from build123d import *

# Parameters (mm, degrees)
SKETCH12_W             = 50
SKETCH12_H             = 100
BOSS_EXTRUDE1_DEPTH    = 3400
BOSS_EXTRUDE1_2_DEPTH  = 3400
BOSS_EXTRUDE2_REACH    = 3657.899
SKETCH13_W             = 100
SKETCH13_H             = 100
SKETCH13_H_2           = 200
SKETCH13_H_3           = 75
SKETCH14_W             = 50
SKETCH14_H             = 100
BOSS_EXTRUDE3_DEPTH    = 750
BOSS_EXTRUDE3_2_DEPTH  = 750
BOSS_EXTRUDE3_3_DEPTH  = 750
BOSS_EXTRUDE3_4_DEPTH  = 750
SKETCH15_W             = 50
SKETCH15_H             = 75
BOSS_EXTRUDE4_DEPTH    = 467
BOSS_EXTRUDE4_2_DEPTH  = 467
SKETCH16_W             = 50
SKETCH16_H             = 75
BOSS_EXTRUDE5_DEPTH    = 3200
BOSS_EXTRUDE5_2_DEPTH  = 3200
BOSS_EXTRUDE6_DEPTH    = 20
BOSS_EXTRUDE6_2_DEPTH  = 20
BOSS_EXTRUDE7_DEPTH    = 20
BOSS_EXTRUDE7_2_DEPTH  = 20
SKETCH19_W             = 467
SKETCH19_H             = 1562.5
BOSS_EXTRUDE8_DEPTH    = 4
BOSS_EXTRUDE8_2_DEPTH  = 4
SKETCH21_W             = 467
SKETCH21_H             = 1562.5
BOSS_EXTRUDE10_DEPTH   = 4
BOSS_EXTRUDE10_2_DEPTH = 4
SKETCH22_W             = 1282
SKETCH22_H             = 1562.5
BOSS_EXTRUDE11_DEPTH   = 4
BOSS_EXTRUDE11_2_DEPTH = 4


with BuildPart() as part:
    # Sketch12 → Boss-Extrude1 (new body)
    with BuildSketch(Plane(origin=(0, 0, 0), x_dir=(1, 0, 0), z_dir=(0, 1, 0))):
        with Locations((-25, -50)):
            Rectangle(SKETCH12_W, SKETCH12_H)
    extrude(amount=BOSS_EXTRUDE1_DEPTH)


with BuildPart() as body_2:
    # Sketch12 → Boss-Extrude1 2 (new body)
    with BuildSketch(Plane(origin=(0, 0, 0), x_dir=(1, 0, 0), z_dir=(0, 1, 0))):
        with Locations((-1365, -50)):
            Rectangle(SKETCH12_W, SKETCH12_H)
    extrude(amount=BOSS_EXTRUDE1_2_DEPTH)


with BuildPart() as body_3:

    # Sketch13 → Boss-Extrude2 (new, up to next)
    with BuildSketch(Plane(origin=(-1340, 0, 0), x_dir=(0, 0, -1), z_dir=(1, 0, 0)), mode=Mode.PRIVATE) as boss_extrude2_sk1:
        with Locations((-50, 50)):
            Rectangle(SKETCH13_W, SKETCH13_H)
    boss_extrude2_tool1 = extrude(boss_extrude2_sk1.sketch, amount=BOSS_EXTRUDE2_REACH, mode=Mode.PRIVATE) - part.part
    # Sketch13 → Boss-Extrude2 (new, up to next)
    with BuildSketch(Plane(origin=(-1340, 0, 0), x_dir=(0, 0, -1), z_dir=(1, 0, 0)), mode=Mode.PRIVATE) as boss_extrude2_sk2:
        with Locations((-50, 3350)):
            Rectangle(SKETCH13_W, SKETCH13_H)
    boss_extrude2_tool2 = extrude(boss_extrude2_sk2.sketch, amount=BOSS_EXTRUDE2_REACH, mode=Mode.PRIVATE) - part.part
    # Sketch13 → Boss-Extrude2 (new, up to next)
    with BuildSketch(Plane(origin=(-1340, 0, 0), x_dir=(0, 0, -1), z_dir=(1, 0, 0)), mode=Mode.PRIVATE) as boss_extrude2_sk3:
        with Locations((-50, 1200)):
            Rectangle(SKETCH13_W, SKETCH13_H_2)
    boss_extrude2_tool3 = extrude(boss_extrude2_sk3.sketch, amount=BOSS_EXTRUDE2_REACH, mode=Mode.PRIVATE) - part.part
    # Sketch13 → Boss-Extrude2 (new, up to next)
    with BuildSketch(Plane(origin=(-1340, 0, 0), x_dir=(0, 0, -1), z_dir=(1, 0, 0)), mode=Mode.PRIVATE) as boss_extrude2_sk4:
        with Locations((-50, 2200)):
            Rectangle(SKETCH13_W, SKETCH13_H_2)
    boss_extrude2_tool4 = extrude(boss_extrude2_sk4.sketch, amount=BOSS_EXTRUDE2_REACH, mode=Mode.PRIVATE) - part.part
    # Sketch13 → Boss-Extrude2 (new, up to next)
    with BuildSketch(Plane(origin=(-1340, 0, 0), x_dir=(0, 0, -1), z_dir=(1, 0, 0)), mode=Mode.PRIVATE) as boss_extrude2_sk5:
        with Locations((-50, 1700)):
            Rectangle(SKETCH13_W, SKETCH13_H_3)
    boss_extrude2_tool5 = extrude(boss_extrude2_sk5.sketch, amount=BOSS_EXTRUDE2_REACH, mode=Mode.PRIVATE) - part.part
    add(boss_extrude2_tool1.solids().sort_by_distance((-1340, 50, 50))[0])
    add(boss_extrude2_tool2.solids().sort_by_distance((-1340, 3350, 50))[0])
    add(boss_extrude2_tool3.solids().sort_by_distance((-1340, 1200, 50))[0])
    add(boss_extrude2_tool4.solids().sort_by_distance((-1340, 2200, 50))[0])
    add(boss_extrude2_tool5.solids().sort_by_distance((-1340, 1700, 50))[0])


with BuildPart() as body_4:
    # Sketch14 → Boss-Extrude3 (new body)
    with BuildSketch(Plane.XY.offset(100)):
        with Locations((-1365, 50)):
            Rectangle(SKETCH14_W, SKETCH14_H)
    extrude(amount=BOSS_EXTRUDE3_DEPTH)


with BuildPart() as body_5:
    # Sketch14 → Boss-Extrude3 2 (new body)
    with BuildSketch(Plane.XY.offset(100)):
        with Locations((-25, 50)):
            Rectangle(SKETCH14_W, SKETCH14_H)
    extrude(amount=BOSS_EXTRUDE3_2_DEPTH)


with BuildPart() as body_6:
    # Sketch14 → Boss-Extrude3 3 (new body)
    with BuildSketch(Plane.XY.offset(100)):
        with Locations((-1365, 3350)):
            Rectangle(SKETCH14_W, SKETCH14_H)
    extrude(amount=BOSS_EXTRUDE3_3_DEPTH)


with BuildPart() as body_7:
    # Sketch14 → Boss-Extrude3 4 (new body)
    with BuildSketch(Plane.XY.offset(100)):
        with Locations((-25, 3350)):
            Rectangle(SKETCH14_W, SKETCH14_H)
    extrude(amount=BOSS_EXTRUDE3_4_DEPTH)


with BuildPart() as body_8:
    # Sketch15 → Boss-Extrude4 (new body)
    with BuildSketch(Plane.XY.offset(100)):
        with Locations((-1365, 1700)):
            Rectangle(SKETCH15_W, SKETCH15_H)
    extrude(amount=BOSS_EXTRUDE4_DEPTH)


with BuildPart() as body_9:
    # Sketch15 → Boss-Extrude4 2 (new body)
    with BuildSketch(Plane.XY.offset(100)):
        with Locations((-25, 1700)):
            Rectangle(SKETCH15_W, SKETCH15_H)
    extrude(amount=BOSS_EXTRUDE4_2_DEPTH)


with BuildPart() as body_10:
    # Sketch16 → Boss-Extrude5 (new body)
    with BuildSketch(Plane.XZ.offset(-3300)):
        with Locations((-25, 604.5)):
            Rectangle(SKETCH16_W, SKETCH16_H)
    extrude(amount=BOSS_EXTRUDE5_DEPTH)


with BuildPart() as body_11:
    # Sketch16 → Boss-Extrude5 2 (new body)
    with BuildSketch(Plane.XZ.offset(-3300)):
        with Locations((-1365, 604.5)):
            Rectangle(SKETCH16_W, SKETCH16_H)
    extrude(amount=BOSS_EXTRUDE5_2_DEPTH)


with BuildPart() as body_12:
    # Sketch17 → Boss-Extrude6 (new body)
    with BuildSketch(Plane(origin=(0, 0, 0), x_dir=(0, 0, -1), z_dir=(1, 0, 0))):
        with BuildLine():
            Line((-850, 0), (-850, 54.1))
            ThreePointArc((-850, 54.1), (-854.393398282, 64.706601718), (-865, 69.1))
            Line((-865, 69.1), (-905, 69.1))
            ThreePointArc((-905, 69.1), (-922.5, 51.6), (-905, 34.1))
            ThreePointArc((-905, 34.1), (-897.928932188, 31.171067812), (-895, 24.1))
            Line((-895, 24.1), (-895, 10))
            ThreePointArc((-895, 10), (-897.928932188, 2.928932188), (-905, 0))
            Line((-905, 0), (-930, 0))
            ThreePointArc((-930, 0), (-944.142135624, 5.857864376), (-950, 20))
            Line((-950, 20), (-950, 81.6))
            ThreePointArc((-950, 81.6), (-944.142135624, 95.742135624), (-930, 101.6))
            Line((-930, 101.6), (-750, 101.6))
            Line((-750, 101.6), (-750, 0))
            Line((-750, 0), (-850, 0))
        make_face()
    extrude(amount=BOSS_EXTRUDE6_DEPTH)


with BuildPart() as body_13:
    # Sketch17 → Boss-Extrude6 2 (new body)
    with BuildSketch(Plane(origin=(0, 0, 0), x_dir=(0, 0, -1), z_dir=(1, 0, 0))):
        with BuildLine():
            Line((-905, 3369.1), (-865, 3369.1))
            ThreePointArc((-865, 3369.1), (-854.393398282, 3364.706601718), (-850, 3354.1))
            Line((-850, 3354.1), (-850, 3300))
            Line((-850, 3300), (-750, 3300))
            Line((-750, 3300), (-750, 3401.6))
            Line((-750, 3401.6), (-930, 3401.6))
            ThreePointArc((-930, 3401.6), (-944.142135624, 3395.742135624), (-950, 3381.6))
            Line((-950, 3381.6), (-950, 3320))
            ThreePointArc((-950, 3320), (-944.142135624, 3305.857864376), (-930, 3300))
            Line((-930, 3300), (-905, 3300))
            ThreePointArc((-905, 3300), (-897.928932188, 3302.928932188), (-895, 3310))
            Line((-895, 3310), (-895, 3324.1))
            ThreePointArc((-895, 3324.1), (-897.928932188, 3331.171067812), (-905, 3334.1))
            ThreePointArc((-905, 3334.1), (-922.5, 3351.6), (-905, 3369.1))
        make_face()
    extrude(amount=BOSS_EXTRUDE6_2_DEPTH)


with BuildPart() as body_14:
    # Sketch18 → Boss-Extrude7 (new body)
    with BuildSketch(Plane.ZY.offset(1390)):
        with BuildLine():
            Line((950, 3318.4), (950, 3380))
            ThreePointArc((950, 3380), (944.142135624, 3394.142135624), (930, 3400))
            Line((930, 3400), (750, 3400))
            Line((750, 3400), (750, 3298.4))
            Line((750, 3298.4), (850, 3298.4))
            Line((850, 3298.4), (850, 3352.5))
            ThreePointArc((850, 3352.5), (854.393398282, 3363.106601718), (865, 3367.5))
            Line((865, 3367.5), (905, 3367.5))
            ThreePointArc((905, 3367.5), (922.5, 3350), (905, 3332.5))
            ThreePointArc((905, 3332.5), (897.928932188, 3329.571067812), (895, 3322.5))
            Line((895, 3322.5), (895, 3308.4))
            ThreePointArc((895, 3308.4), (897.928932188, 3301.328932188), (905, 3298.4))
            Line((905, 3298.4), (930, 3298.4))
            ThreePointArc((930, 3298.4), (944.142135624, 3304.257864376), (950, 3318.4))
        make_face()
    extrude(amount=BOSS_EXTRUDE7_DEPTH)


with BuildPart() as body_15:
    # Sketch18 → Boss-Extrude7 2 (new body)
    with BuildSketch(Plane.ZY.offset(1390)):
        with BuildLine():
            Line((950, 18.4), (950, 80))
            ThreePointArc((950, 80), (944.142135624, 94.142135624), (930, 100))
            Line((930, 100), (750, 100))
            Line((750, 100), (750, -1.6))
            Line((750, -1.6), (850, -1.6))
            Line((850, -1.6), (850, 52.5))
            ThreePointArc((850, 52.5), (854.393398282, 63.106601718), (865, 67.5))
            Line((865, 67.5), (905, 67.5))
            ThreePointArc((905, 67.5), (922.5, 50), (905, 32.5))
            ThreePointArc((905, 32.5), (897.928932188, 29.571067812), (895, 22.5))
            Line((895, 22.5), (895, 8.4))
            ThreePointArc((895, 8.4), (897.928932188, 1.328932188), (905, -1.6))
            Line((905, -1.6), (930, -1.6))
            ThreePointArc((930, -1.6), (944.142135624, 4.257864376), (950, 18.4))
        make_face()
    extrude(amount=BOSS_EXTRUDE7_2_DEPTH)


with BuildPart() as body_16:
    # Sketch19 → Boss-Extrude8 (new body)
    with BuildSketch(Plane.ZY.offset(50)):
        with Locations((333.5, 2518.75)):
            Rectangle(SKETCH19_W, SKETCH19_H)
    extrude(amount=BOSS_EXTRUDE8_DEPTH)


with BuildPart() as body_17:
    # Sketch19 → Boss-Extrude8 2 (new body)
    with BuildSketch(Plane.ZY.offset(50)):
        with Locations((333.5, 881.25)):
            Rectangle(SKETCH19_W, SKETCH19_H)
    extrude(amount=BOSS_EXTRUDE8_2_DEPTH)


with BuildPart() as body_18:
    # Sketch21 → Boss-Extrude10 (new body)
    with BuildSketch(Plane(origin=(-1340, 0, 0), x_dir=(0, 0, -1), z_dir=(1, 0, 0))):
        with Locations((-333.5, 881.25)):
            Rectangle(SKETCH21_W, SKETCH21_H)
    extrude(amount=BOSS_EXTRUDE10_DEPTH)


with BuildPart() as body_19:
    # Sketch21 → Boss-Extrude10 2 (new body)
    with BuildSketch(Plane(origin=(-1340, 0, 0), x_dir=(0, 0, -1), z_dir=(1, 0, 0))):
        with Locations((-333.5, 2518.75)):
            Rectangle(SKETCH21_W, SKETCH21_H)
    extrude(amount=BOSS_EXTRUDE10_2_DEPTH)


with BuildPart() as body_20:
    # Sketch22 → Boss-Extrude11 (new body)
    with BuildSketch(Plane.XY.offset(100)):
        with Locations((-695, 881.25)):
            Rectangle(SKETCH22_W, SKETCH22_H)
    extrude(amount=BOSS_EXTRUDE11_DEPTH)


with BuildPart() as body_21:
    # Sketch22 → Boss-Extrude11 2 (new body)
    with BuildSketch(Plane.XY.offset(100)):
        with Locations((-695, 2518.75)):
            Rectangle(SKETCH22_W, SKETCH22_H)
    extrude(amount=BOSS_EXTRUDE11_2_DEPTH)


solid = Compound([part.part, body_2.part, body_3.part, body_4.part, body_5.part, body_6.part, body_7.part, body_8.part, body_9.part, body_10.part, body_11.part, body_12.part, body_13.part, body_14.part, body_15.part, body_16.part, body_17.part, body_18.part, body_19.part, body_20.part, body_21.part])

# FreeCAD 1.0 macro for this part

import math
import FreeCAD as App
import Part
import Sketcher
from FreeCAD import Vector
Q = App.Units.Quantity

doc = App.newDocument("Part")
body = doc.addObject("PartDesign::Body", "Body")

sketch1 = body.newObject("Sketcher::SketchObject", "Sketch")
sketch1.AttachmentSupport = (doc.getObject("XZ_Plane"), [""])
sketch1.MapMode = "FlatFace"
sketch1.addGeometry([
    Part.LineSegment(Vector(-50, 0, 0), Vector(-50, 100, 0)),
    Part.LineSegment(Vector(-50, 100, 0), Vector(0, 100, 0)),
    Part.LineSegment(Vector(0, 100, 0), Vector(0, 0, 0)),
    Part.LineSegment(Vector(0, 0, 0), Vector(-50, 0, 0)),
], False)
sketch1.addConstraint([
    Sketcher.Constraint("Coincident", 0, 2, 1, 1),
    Sketcher.Constraint("Coincident", 1, 2, 2, 1),
    Sketcher.Constraint("Coincident", 2, 2, 3, 1),
    Sketcher.Constraint("Coincident", 3, 2, 0, 1),
    Sketcher.Constraint("Vertical", 0),
    Sketcher.Constraint("Horizontal", 1),
    Sketcher.Constraint("Vertical", 2),
    Sketcher.Constraint("Horizontal", 3),
    Sketcher.Constraint("Coincident", 2, 2, -1, 1),
    Sketcher.Constraint("DistanceX", 1, 1, 1, 2, Q("50 mm")),
    Sketcher.Constraint("DistanceY", 0, 1, 0, 2, Q("100 mm")),
])
pad1 = body.newObject("PartDesign::Pad", "Pad")
pad1.Profile = sketch1
pad1.Length = 3400
pad1.Reversed = True
body2 = doc.addObject("PartDesign::Body", "Body001")

sketch2 = body2.newObject("Sketcher::SketchObject", "Sketch001")
sketch2.AttachmentSupport = (doc.getObject("XZ_Plane001"), [""])
sketch2.MapMode = "FlatFace"
sketch2.addGeometry([
    Part.LineSegment(Vector(-1390, 0, 0), Vector(-1390, 100, 0)),
    Part.LineSegment(Vector(-1390, 100, 0), Vector(-1340, 100, 0)),
    Part.LineSegment(Vector(-1340, 100, 0), Vector(-1340, 0, 0)),
    Part.LineSegment(Vector(-1340, 0, 0), Vector(-1390, 0, 0)),
], False)
sketch2.addConstraint([
    Sketcher.Constraint("Coincident", 0, 2, 1, 1),
    Sketcher.Constraint("Coincident", 1, 2, 2, 1),
    Sketcher.Constraint("Coincident", 2, 2, 3, 1),
    Sketcher.Constraint("Coincident", 3, 2, 0, 1),
    Sketcher.Constraint("Vertical", 0),
    Sketcher.Constraint("Horizontal", 1),
    Sketcher.Constraint("Vertical", 2),
    Sketcher.Constraint("Horizontal", 3),
    Sketcher.Constraint("PointOnObject", 2, 2, -1),
    Sketcher.Constraint("DistanceX", 1, 1, 1, 2, Q("50 mm")),
    Sketcher.Constraint("DistanceY", 0, 1, 0, 2, Q("100 mm")),
    Sketcher.Constraint("DistanceX", 0, 2, -1, 1, Q("1390 mm")),
])
pad2 = body2.newObject("PartDesign::Pad", "Pad001")
pad2.Profile = sketch2
pad2.Length = 3400
pad2.Reversed = True
body3 = doc.addObject("PartDesign::Body", "Body002")
body3.AllowCompound = True

sketch3 = body3.newObject("Sketcher::SketchObject", "Sketch002")
sketch3.AttachmentSupport = (doc.getObject("YZ_Plane002"), [""])
sketch3.MapMode = "FlatFace"
sketch3.AttachmentOffset = App.Placement(Vector(0, 0, -1340), App.Rotation())
sketch3.addGeometry([
    Part.LineSegment(Vector(100, 100, 0), Vector(0, 100, 0)),
    Part.LineSegment(Vector(0, 100, 0), Vector(0, 0, 0)),
    Part.LineSegment(Vector(0, 0, 0), Vector(100, 0, 0)),
    Part.LineSegment(Vector(100, 0, 0), Vector(100, 100, 0)),
], False)
sketch3.addConstraint([
    Sketcher.Constraint("Coincident", 0, 2, 1, 1),
    Sketcher.Constraint("Coincident", 1, 2, 2, 1),
    Sketcher.Constraint("Coincident", 2, 2, 3, 1),
    Sketcher.Constraint("Coincident", 3, 2, 0, 1),
    Sketcher.Constraint("Horizontal", 0),
    Sketcher.Constraint("Vertical", 1),
    Sketcher.Constraint("Horizontal", 2),
    Sketcher.Constraint("Vertical", 3),
    Sketcher.Constraint("Coincident", 1, 2, -1, 1),
    Sketcher.Constraint("Equal", 2, 1),
    Sketcher.Constraint("DistanceX", 0, 2, 0, 1, Q("100 mm")),
])
pad3 = body3.newObject("PartDesign::Pad", "Pad002")
pad3.Profile = sketch3
pad3.Length = 1290

sketch4 = body3.newObject("Sketcher::SketchObject", "Sketch003")
sketch4.AttachmentSupport = (doc.getObject("YZ_Plane002"), [""])
sketch4.MapMode = "FlatFace"
sketch4.AttachmentOffset = App.Placement(Vector(0, 0, -1340), App.Rotation())
sketch4.addGeometry([
    Part.LineSegment(Vector(3400, 100, 0), Vector(3300, 100, 0)),
    Part.LineSegment(Vector(3300, 100, 0), Vector(3300, 0, 0)),
    Part.LineSegment(Vector(3300, 0, 0), Vector(3400, 0, 0)),
    Part.LineSegment(Vector(3400, 0, 0), Vector(3400, 100, 0)),
], False)
sketch4.addConstraint([
    Sketcher.Constraint("Coincident", 0, 2, 1, 1),
    Sketcher.Constraint("Coincident", 1, 2, 2, 1),
    Sketcher.Constraint("Coincident", 2, 2, 3, 1),
    Sketcher.Constraint("Coincident", 3, 2, 0, 1),
    Sketcher.Constraint("Horizontal", 0),
    Sketcher.Constraint("Vertical", 1),
    Sketcher.Constraint("Horizontal", 2),
    Sketcher.Constraint("Vertical", 3),
    Sketcher.Constraint("PointOnObject", 1, 2, -1),
    Sketcher.Constraint("Equal", 2, 1),
    Sketcher.Constraint("DistanceX", 0, 2, 0, 1, Q("100 mm")),
    Sketcher.Constraint("DistanceX", -1, 1, 0, 2, Q("3300 mm")),
])
pad4 = body3.newObject("PartDesign::Pad", "Pad003")
pad4.Profile = sketch4
pad4.Length = 1290

sketch5 = body3.newObject("Sketcher::SketchObject", "Sketch004")
sketch5.AttachmentSupport = (doc.getObject("YZ_Plane002"), [""])
sketch5.MapMode = "FlatFace"
sketch5.AttachmentOffset = App.Placement(Vector(0, 0, -1340), App.Rotation())
sketch5.addGeometry([
    Part.LineSegment(Vector(1300, 100, 0), Vector(1100, 100, 0)),
    Part.LineSegment(Vector(1100, 100, 0), Vector(1100, 0, 0)),
    Part.LineSegment(Vector(1100, 0, 0), Vector(1300, 0, 0)),
    Part.LineSegment(Vector(1300, 0, 0), Vector(1300, 100, 0)),
], False)
sketch5.addConstraint([
    Sketcher.Constraint("Coincident", 0, 2, 1, 1),
    Sketcher.Constraint("Coincident", 1, 2, 2, 1),
    Sketcher.Constraint("Coincident", 2, 2, 3, 1),
    Sketcher.Constraint("Coincident", 3, 2, 0, 1),
    Sketcher.Constraint("Horizontal", 0),
    Sketcher.Constraint("Vertical", 1),
    Sketcher.Constraint("Horizontal", 2),
    Sketcher.Constraint("Vertical", 3),
    Sketcher.Constraint("PointOnObject", 1, 2, -1),
    Sketcher.Constraint("DistanceX", 0, 2, 0, 1, Q("200 mm")),
    Sketcher.Constraint("DistanceY", 1, 2, 1, 1, Q("100 mm")),
    Sketcher.Constraint("DistanceX", -1, 1, 0, 2, Q("1100 mm")),
])
pad5 = body3.newObject("PartDesign::Pad", "Pad004")
pad5.Profile = sketch5
pad5.Length = 1290

sketch6 = body3.newObject("Sketcher::SketchObject", "Sketch005")
sketch6.AttachmentSupport = (doc.getObject("YZ_Plane002"), [""])
sketch6.MapMode = "FlatFace"
sketch6.AttachmentOffset = App.Placement(Vector(0, 0, -1340), App.Rotation())
sketch6.addGeometry([
    Part.LineSegment(Vector(2300, 100, 0), Vector(2100, 100, 0)),
    Part.LineSegment(Vector(2100, 100, 0), Vector(2100, 0, 0)),
    Part.LineSegment(Vector(2100, 0, 0), Vector(2300, 0, 0)),
    Part.LineSegment(Vector(2300, 0, 0), Vector(2300, 100, 0)),
], False)
sketch6.addConstraint([
    Sketcher.Constraint("Coincident", 0, 2, 1, 1),
    Sketcher.Constraint("Coincident", 1, 2, 2, 1),
    Sketcher.Constraint("Coincident", 2, 2, 3, 1),
    Sketcher.Constraint("Coincident", 3, 2, 0, 1),
    Sketcher.Constraint("Horizontal", 0),
    Sketcher.Constraint("Vertical", 1),
    Sketcher.Constraint("Horizontal", 2),
    Sketcher.Constraint("Vertical", 3),
    Sketcher.Constraint("PointOnObject", 1, 2, -1),
    Sketcher.Constraint("DistanceX", 0, 2, 0, 1, Q("200 mm")),
    Sketcher.Constraint("DistanceY", 1, 2, 1, 1, Q("100 mm")),
    Sketcher.Constraint("DistanceX", -1, 1, 0, 2, Q("2100 mm")),
])
pad6 = body3.newObject("PartDesign::Pad", "Pad005")
pad6.Profile = sketch6
pad6.Length = 1290

sketch7 = body3.newObject("Sketcher::SketchObject", "Sketch006")
sketch7.AttachmentSupport = (doc.getObject("YZ_Plane002"), [""])
sketch7.MapMode = "FlatFace"
sketch7.AttachmentOffset = App.Placement(Vector(0, 0, -1340), App.Rotation())
sketch7.addGeometry([
    Part.LineSegment(Vector(1737.5, 100, 0), Vector(1662.5, 100, 0)),
    Part.LineSegment(Vector(1662.5, 100, 0), Vector(1662.5, 0, 0)),
    Part.LineSegment(Vector(1662.5, 0, 0), Vector(1737.5, 0, 0)),
    Part.LineSegment(Vector(1737.5, 0, 0), Vector(1737.5, 100, 0)),
], False)
sketch7.addConstraint([
    Sketcher.Constraint("Coincident", 0, 2, 1, 1),
    Sketcher.Constraint("Coincident", 1, 2, 2, 1),
    Sketcher.Constraint("Coincident", 2, 2, 3, 1),
    Sketcher.Constraint("Coincident", 3, 2, 0, 1),
    Sketcher.Constraint("Horizontal", 0),
    Sketcher.Constraint("Vertical", 1),
    Sketcher.Constraint("Horizontal", 2),
    Sketcher.Constraint("Vertical", 3),
    Sketcher.Constraint("PointOnObject", 1, 2, -1),
    Sketcher.Constraint("DistanceX", 0, 2, 0, 1, Q("75 mm")),
    Sketcher.Constraint("DistanceY", 1, 2, 1, 1, Q("100 mm")),
    Sketcher.Constraint("DistanceX", -1, 1, 0, 2, Q("1662.5 mm")),
])
pad7 = body3.newObject("PartDesign::Pad", "Pad006")
pad7.Profile = sketch7
pad7.Length = 1290
body4 = doc.addObject("PartDesign::Body", "Body003")

sketch8 = body4.newObject("Sketcher::SketchObject", "Sketch007")
sketch8.AttachmentSupport = (doc.getObject("XY_Plane003"), [""])
sketch8.MapMode = "FlatFace"
sketch8.AttachmentOffset = App.Placement(Vector(0, 0, 100), App.Rotation())
sketch8.addGeometry([
    Part.LineSegment(Vector(-1390, 100, 0), Vector(-1390, 0, 0)),
    Part.LineSegment(Vector(-1390, 0, 0), Vector(-1340, 0, 0)),
    Part.LineSegment(Vector(-1340, 0, 0), Vector(-1340, 100, 0)),
    Part.LineSegment(Vector(-1340, 100, 0), Vector(-1390, 100, 0)),
], False)
sketch8.addConstraint([
    Sketcher.Constraint("Coincident", 0, 2, 1, 1),
    Sketcher.Constraint("Coincident", 1, 2, 2, 1),
    Sketcher.Constraint("Coincident", 2, 2, 3, 1),
    Sketcher.Constraint("Coincident", 3, 2, 0, 1),
    Sketcher.Constraint("Vertical", 0),
    Sketcher.Constraint("Horizontal", 1),
    Sketcher.Constraint("Vertical", 2),
    Sketcher.Constraint("Horizontal", 3),
    Sketcher.Constraint("PointOnObject", 0, 2, -1),
    Sketcher.Constraint("DistanceX", 1, 1, 1, 2, Q("50 mm")),
    Sketcher.Constraint("DistanceY", 0, 2, 0, 1, Q("100 mm")),
    Sketcher.Constraint("DistanceX", 0, 2, -1, 1, Q("1390 mm")),
])
pad8 = body4.newObject("PartDesign::Pad", "Pad007")
pad8.Profile = sketch8
pad8.Length = 750
body5 = doc.addObject("PartDesign::Body", "Body004")

sketch9 = body5.newObject("Sketcher::SketchObject", "Sketch008")
sketch9.AttachmentSupport = (doc.getObject("XY_Plane004"), [""])
sketch9.MapMode = "FlatFace"
sketch9.AttachmentOffset = App.Placement(Vector(0, 0, 100), App.Rotation())
sketch9.addGeometry([
    Part.LineSegment(Vector(-50, 100, 0), Vector(-50, 0, 0)),
    Part.LineSegment(Vector(-50, 0, 0), Vector(0, 0, 0)),
    Part.LineSegment(Vector(0, 0, 0), Vector(0, 100, 0)),
    Part.LineSegment(Vector(0, 100, 0), Vector(-50, 100, 0)),
], False)
sketch9.addConstraint([
    Sketcher.Constraint("Coincident", 0, 2, 1, 1),
    Sketcher.Constraint("Coincident", 1, 2, 2, 1),
    Sketcher.Constraint("Coincident", 2, 2, 3, 1),
    Sketcher.Constraint("Coincident", 3, 2, 0, 1),
    Sketcher.Constraint("Vertical", 0),
    Sketcher.Constraint("Horizontal", 1),
    Sketcher.Constraint("Vertical", 2),
    Sketcher.Constraint("Horizontal", 3),
    Sketcher.Constraint("Coincident", 1, 2, -1, 1),
    Sketcher.Constraint("DistanceX", 1, 1, 1, 2, Q("50 mm")),
    Sketcher.Constraint("DistanceY", 0, 2, 0, 1, Q("100 mm")),
])
pad9 = body5.newObject("PartDesign::Pad", "Pad008")
pad9.Profile = sketch9
pad9.Length = 750
body6 = doc.addObject("PartDesign::Body", "Body005")

sketch10 = body6.newObject("Sketcher::SketchObject", "Sketch009")
sketch10.AttachmentSupport = (doc.getObject("XY_Plane005"), [""])
sketch10.MapMode = "FlatFace"
sketch10.AttachmentOffset = App.Placement(Vector(0, 0, 100), App.Rotation())
sketch10.addGeometry([
    Part.LineSegment(Vector(-1390, 3400, 0), Vector(-1390, 3300, 0)),
    Part.LineSegment(Vector(-1390, 3300, 0), Vector(-1340, 3300, 0)),
    Part.LineSegment(Vector(-1340, 3300, 0), Vector(-1340, 3400, 0)),
    Part.LineSegment(Vector(-1340, 3400, 0), Vector(-1390, 3400, 0)),
], False)
sketch10.addConstraint([
    Sketcher.Constraint("Coincident", 0, 2, 1, 1),
    Sketcher.Constraint("Coincident", 1, 2, 2, 1),
    Sketcher.Constraint("Coincident", 2, 2, 3, 1),
    Sketcher.Constraint("Coincident", 3, 2, 0, 1),
    Sketcher.Constraint("Vertical", 0),
    Sketcher.Constraint("Horizontal", 1),
    Sketcher.Constraint("Vertical", 2),
    Sketcher.Constraint("Horizontal", 3),
    Sketcher.Constraint("DistanceX", 1, 1, 1, 2, Q("50 mm")),
    Sketcher.Constraint("DistanceY", 0, 2, 0, 1, Q("100 mm")),
    Sketcher.Constraint("DistanceX", 0, 2, -1, 1, Q("1390 mm")),
    Sketcher.Constraint("DistanceY", -1, 1, 0, 2, Q("3300 mm")),
])
pad10 = body6.newObject("PartDesign::Pad", "Pad009")
pad10.Profile = sketch10
pad10.Length = 750
body7 = doc.addObject("PartDesign::Body", "Body006")

sketch11 = body7.newObject("Sketcher::SketchObject", "Sketch010")
sketch11.AttachmentSupport = (doc.getObject("XY_Plane006"), [""])
sketch11.MapMode = "FlatFace"
sketch11.AttachmentOffset = App.Placement(Vector(0, 0, 100), App.Rotation())
sketch11.addGeometry([
    Part.LineSegment(Vector(-50, 3400, 0), Vector(-50, 3300, 0)),
    Part.LineSegment(Vector(-50, 3300, 0), Vector(0, 3300, 0)),
    Part.LineSegment(Vector(0, 3300, 0), Vector(0, 3400, 0)),
    Part.LineSegment(Vector(0, 3400, 0), Vector(-50, 3400, 0)),
], False)
sketch11.addConstraint([
    Sketcher.Constraint("Coincident", 0, 2, 1, 1),
    Sketcher.Constraint("Coincident", 1, 2, 2, 1),
    Sketcher.Constraint("Coincident", 2, 2, 3, 1),
    Sketcher.Constraint("Coincident", 3, 2, 0, 1),
    Sketcher.Constraint("Vertical", 0),
    Sketcher.Constraint("Horizontal", 1),
    Sketcher.Constraint("Vertical", 2),
    Sketcher.Constraint("Horizontal", 3),
    Sketcher.Constraint("PointOnObject", 1, 2, -2),
    Sketcher.Constraint("DistanceX", 1, 1, 1, 2, Q("50 mm")),
    Sketcher.Constraint("DistanceY", 0, 2, 0, 1, Q("100 mm")),
    Sketcher.Constraint("DistanceY", -1, 1, 0, 2, Q("3300 mm")),
])
pad11 = body7.newObject("PartDesign::Pad", "Pad010")
pad11.Profile = sketch11
pad11.Length = 750
body8 = doc.addObject("PartDesign::Body", "Body007")

sketch12 = body8.newObject("Sketcher::SketchObject", "Sketch011")
sketch12.AttachmentSupport = (doc.getObject("XY_Plane007"), [""])
sketch12.MapMode = "FlatFace"
sketch12.AttachmentOffset = App.Placement(Vector(0, 0, 100), App.Rotation())
sketch12.addGeometry([
    Part.LineSegment(Vector(-1390, 1737.5, 0), Vector(-1390, 1662.5, 0)),
    Part.LineSegment(Vector(-1390, 1662.5, 0), Vector(-1340, 1662.5, 0)),
    Part.LineSegment(Vector(-1340, 1662.5, 0), Vector(-1340, 1737.5, 0)),
    Part.LineSegment(Vector(-1340, 1737.5, 0), Vector(-1390, 1737.5, 0)),
], False)
sketch12.addConstraint([
    Sketcher.Constraint("Coincident", 0, 2, 1, 1),
    Sketcher.Constraint("Coincident", 1, 2, 2, 1),
    Sketcher.Constraint("Coincident", 2, 2, 3, 1),
    Sketcher.Constraint("Coincident", 3, 2, 0, 1),
    Sketcher.Constraint("Vertical", 0),
    Sketcher.Constraint("Horizontal", 1),
    Sketcher.Constraint("Vertical", 2),
    Sketcher.Constraint("Horizontal", 3),
    Sketcher.Constraint("DistanceX", 1, 1, 1, 2, Q("50 mm")),
    Sketcher.Constraint("DistanceY", 0, 2, 0, 1, Q("75 mm")),
    Sketcher.Constraint("DistanceX", 0, 2, -1, 1, Q("1390 mm")),
    Sketcher.Constraint("DistanceY", -1, 1, 0, 2, Q("1662.5 mm")),
])
pad12 = body8.newObject("PartDesign::Pad", "Pad011")
pad12.Profile = sketch12
pad12.Length = 467
body9 = doc.addObject("PartDesign::Body", "Body008")

sketch13 = body9.newObject("Sketcher::SketchObject", "Sketch012")
sketch13.AttachmentSupport = (doc.getObject("XY_Plane008"), [""])
sketch13.MapMode = "FlatFace"
sketch13.AttachmentOffset = App.Placement(Vector(0, 0, 100), App.Rotation())
sketch13.addGeometry([
    Part.LineSegment(Vector(-50, 1737.5, 0), Vector(-50, 1662.5, 0)),
    Part.LineSegment(Vector(-50, 1662.5, 0), Vector(0, 1662.5, 0)),
    Part.LineSegment(Vector(0, 1662.5, 0), Vector(0, 1737.5, 0)),
    Part.LineSegment(Vector(0, 1737.5, 0), Vector(-50, 1737.5, 0)),
], False)
sketch13.addConstraint([
    Sketcher.Constraint("Coincident", 0, 2, 1, 1),
    Sketcher.Constraint("Coincident", 1, 2, 2, 1),
    Sketcher.Constraint("Coincident", 2, 2, 3, 1),
    Sketcher.Constraint("Coincident", 3, 2, 0, 1),
    Sketcher.Constraint("Vertical", 0),
    Sketcher.Constraint("Horizontal", 1),
    Sketcher.Constraint("Vertical", 2),
    Sketcher.Constraint("Horizontal", 3),
    Sketcher.Constraint("PointOnObject", 1, 2, -2),
    Sketcher.Constraint("DistanceX", 1, 1, 1, 2, Q("50 mm")),
    Sketcher.Constraint("DistanceY", 0, 2, 0, 1, Q("75 mm")),
    Sketcher.Constraint("DistanceY", -1, 1, 0, 2, Q("1662.5 mm")),
])
pad13 = body9.newObject("PartDesign::Pad", "Pad012")
pad13.Profile = sketch13
pad13.Length = 467
body10 = doc.addObject("PartDesign::Body", "Body009")

sketch14 = body10.newObject("Sketcher::SketchObject", "Sketch013")
sketch14.AttachmentSupport = (doc.getObject("XZ_Plane009"), [""])
sketch14.MapMode = "FlatFace"
sketch14.AttachmentOffset = App.Placement(Vector(0, 0, -3300), App.Rotation())
sketch14.addGeometry([
    Part.LineSegment(Vector(-50, 642, 0), Vector(-50, 567, 0)),
    Part.LineSegment(Vector(-50, 567, 0), Vector(0, 567, 0)),
    Part.LineSegment(Vector(0, 567, 0), Vector(0, 642, 0)),
    Part.LineSegment(Vector(0, 642, 0), Vector(-50, 642, 0)),
], False)
sketch14.addConstraint([
    Sketcher.Constraint("Coincident", 0, 2, 1, 1),
    Sketcher.Constraint("Coincident", 1, 2, 2, 1),
    Sketcher.Constraint("Coincident", 2, 2, 3, 1),
    Sketcher.Constraint("Coincident", 3, 2, 0, 1),
    Sketcher.Constraint("Vertical", 0),
    Sketcher.Constraint("Horizontal", 1),
    Sketcher.Constraint("Vertical", 2),
    Sketcher.Constraint("Horizontal", 3),
    Sketcher.Constraint("PointOnObject", 1, 2, -2),
    Sketcher.Constraint("DistanceX", 1, 1, 1, 2, Q("50 mm")),
    Sketcher.Constraint("DistanceY", 0, 2, 0, 1, Q("75 mm")),
    Sketcher.Constraint("DistanceY", -1, 1, 0, 2, Q("567 mm")),
])
pad14 = body10.newObject("PartDesign::Pad", "Pad013")
pad14.Profile = sketch14
pad14.Length = 3200
body11 = doc.addObject("PartDesign::Body", "Body010")

sketch15 = body11.newObject("Sketcher::SketchObject", "Sketch014")
sketch15.AttachmentSupport = (doc.getObject("XZ_Plane010"), [""])
sketch15.MapMode = "FlatFace"
sketch15.AttachmentOffset = App.Placement(Vector(0, 0, -3300), App.Rotation())
sketch15.addGeometry([
    Part.LineSegment(Vector(-1390, 642, 0), Vector(-1390, 567, 0)),
    Part.LineSegment(Vector(-1390, 567, 0), Vector(-1340, 567, 0)),
    Part.LineSegment(Vector(-1340, 567, 0), Vector(-1340, 642, 0)),
    Part.LineSegment(Vector(-1340, 642, 0), Vector(-1390, 642, 0)),
], False)
sketch15.addConstraint([
    Sketcher.Constraint("Coincident", 0, 2, 1, 1),
    Sketcher.Constraint("Coincident", 1, 2, 2, 1),
    Sketcher.Constraint("Coincident", 2, 2, 3, 1),
    Sketcher.Constraint("Coincident", 3, 2, 0, 1),
    Sketcher.Constraint("Vertical", 0),
    Sketcher.Constraint("Horizontal", 1),
    Sketcher.Constraint("Vertical", 2),
    Sketcher.Constraint("Horizontal", 3),
    Sketcher.Constraint("DistanceX", 1, 1, 1, 2, Q("50 mm")),
    Sketcher.Constraint("DistanceY", 0, 2, 0, 1, Q("75 mm")),
    Sketcher.Constraint("DistanceX", 0, 2, -1, 1, Q("1390 mm")),
    Sketcher.Constraint("DistanceY", -1, 1, 0, 2, Q("567 mm")),
])
pad15 = body11.newObject("PartDesign::Pad", "Pad014")
pad15.Profile = sketch15
pad15.Length = 3200
body12 = doc.addObject("PartDesign::Body", "Body011")

sketch16 = body12.newObject("Sketcher::SketchObject", "Sketch015")
sketch16.AttachmentSupport = (doc.getObject("YZ_Plane011"), [""])
sketch16.MapMode = "FlatFace"
sketch16.addGeometry([
    Part.LineSegment(Vector(54.1, 850, 0), Vector(0, 850, 0)),
    Part.LineSegment(Vector(0, 850, 0), Vector(0, 750, 0)),
    Part.LineSegment(Vector(0, 750, 0), Vector(101.6, 750, 0)),
    Part.LineSegment(Vector(101.6, 750, 0), Vector(101.6, 930, 0)),
    Part.ArcOfCircle(Part.Circle(Vector(81.6, 930, 0), Vector(0, 0, 1), 20), math.radians(0), math.radians(90)),
    Part.LineSegment(Vector(81.6, 950, 0), Vector(20, 950, 0)),
    Part.ArcOfCircle(Part.Circle(Vector(20, 930, 0), Vector(0, 0, 1), 20), math.radians(90), math.radians(180)),
    Part.LineSegment(Vector(0, 930, 0), Vector(0, 905, 0)),
    Part.ArcOfCircle(Part.Circle(Vector(10, 905, 0), Vector(0, 0, 1), 10), math.radians(180), math.radians(270)),
    Part.LineSegment(Vector(10, 895, 0), Vector(24.1, 895, 0)),
    Part.ArcOfCircle(Part.Circle(Vector(24.1, 905, 0), Vector(0, 0, 1), 10), math.radians(-90), math.radians(0)),
    Part.ArcOfCircle(Part.Circle(Vector(51.6, 905, 0), Vector(0, 0, 1), 17.5), math.radians(0), math.radians(180)),
    Part.LineSegment(Vector(69.1, 905, 0), Vector(69.1, 865, 0)),
    Part.ArcOfCircle(Part.Circle(Vector(54.1, 865, 0), Vector(0, 0, 1), 15), math.radians(-90), math.radians(0)),
], False)
sketch16.addConstraint([
    Sketcher.Constraint("Coincident", 0, 2, 1, 1),
    Sketcher.Constraint("Coincident", 1, 2, 2, 1),
    Sketcher.Constraint("Coincident", 2, 2, 3, 1),
    Sketcher.Constraint("Tangent", 3, 2, 4, 1),
    Sketcher.Constraint("Tangent", 4, 2, 5, 1),
    Sketcher.Constraint("Tangent", 5, 2, 6, 1),
    Sketcher.Constraint("Tangent", 6, 2, 7, 1),
    Sketcher.Constraint("Tangent", 7, 2, 8, 1),
    Sketcher.Constraint("Tangent", 8, 2, 9, 1),
    Sketcher.Constraint("Tangent", 9, 2, 10, 1),
    Sketcher.Constraint("Tangent", 10, 2, 11, 2),
    Sketcher.Constraint("Tangent", 11, 1, 12, 1),
    Sketcher.Constraint("Tangent", 12, 2, 13, 2),
    Sketcher.Constraint("Tangent", 13, 1, 0, 1),
    Sketcher.Constraint("Horizontal", 0),
    Sketcher.Constraint("Vertical", 1),
    Sketcher.Constraint("Horizontal", 2),
    Sketcher.Constraint("Vertical", 3),
    Sketcher.Constraint("Horizontal", 5),
    Sketcher.Constraint("Vertical", 7),
    Sketcher.Constraint("Horizontal", 9),
    Sketcher.Constraint("Vertical", 12),
    Sketcher.Constraint("Equal", 4, 6),
    Sketcher.Constraint("Equal", 8, 10),
    Sketcher.Constraint("PointOnObject", 0, 2, -2),
    Sketcher.Constraint("PointOnObject", 6, 2, -2),
    Sketcher.Constraint("Horizontal", 10, 3, 11, 3),
    Sketcher.Constraint("Radius", 4, Q("20 mm")),
    Sketcher.Constraint("Radius", 8, Q("10 mm")),
    Sketcher.Constraint("Radius", 13, Q("15 mm")),
    Sketcher.Constraint("Radius", 11, Q("17.5 mm")),
    Sketcher.Constraint("DistanceY", 1, 2, 1, 1, Q("100 mm")),
    Sketcher.Constraint("DistanceY", 3, 1, 3, 2, Q("180 mm")),
    Sketcher.Constraint("DistanceY", 7, 2, 7, 1, Q("25 mm")),
    Sketcher.Constraint("DistanceX", 0, 2, 0, 1, Q("54.1 mm")),
    Sketcher.Constraint("DistanceX", 2, 1, 2, 2, Q("101.6 mm")),
    Sketcher.Constraint("DistanceY", -1, 1, 4, 3, Q("930 mm")),
])
pad16 = body12.newObject("PartDesign::Pad", "Pad015")
pad16.Profile = sketch16
pad16.Length = 20
body13 = doc.addObject("PartDesign::Body", "Body012")

sketch17 = body13.newObject("Sketcher::SketchObject", "Sketch016")
sketch17.AttachmentSupport = (doc.getObject("YZ_Plane012"), [""])
sketch17.MapMode = "FlatFace"
sketch17.addGeometry([
    Part.LineSegment(Vector(3369.1, 905, 0), Vector(3369.1, 865, 0)),
    Part.ArcOfCircle(Part.Circle(Vector(3354.1, 865, 0), Vector(0, 0, 1), 15), math.radians(-90), math.radians(0)),
    Part.LineSegment(Vector(3354.1, 850, 0), Vector(3300, 850, 0)),
    Part.LineSegment(Vector(3300, 850, 0), Vector(3300, 750, 0)),
    Part.LineSegment(Vector(3300, 750, 0), Vector(3401.6, 750, 0)),
    Part.LineSegment(Vector(3401.6, 750, 0), Vector(3401.6, 930, 0)),
    Part.ArcOfCircle(Part.Circle(Vector(3381.6, 930, 0), Vector(0, 0, 1), 20), math.radians(0), math.radians(90)),
    Part.LineSegment(Vector(3381.6, 950, 0), Vector(3320, 950, 0)),
    Part.ArcOfCircle(Part.Circle(Vector(3320, 930, 0), Vector(0, 0, 1), 20), math.radians(90), math.radians(180)),
    Part.LineSegment(Vector(3300, 930, 0), Vector(3300, 905, 0)),
    Part.ArcOfCircle(Part.Circle(Vector(3310, 905, 0), Vector(0, 0, 1), 10), math.radians(180), math.radians(270)),
    Part.LineSegment(Vector(3310, 895, 0), Vector(3324.1, 895, 0)),
    Part.ArcOfCircle(Part.Circle(Vector(3324.1, 905, 0), Vector(0, 0, 1), 10), math.radians(-90), math.radians(0)),
    Part.ArcOfCircle(Part.Circle(Vector(3351.6, 905, 0), Vector(0, 0, 1), 17.5), math.radians(0), math.radians(180)),
], False)
sketch17.addConstraint([
    Sketcher.Constraint("Tangent", 0, 2, 1, 2),
    Sketcher.Constraint("Tangent", 1, 1, 2, 1),
    Sketcher.Constraint("Coincident", 2, 2, 3, 1),
    Sketcher.Constraint("Coincident", 3, 2, 4, 1),
    Sketcher.Constraint("Coincident", 4, 2, 5, 1),
    Sketcher.Constraint("Tangent", 5, 2, 6, 1),
    Sketcher.Constraint("Tangent", 6, 2, 7, 1),
    Sketcher.Constraint("Tangent", 7, 2, 8, 1),
    Sketcher.Constraint("Tangent", 8, 2, 9, 1),
    Sketcher.Constraint("Tangent", 9, 2, 10, 1),
    Sketcher.Constraint("Tangent", 10, 2, 11, 1),
    Sketcher.Constraint("Tangent", 11, 2, 12, 1),
    Sketcher.Constraint("Tangent", 12, 2, 13, 2),
    Sketcher.Constraint("Tangent", 13, 1, 0, 1),
    Sketcher.Constraint("Vertical", 0),
    Sketcher.Constraint("Horizontal", 2),
    Sketcher.Constraint("Vertical", 3),
    Sketcher.Constraint("Horizontal", 4),
    Sketcher.Constraint("Vertical", 5),
    Sketcher.Constraint("Horizontal", 7),
    Sketcher.Constraint("Vertical", 9),
    Sketcher.Constraint("Horizontal", 11),
    Sketcher.Constraint("Equal", 6, 8),
    Sketcher.Constraint("Equal", 10, 12),
    Sketcher.Constraint("Horizontal", 12, 3, 13, 3),
    Sketcher.Constraint("Vertical", 3, 2, 8, 2),
    Sketcher.Constraint("Radius", 1, Q("15 mm")),
    Sketcher.Constraint("Radius", 6, Q("20 mm")),
    Sketcher.Constraint("Radius", 10, Q("10 mm")),
    Sketcher.Constraint("Radius", 13, Q("17.5 mm")),
    Sketcher.Constraint("DistanceY", 0, 2, 0, 1, Q("40 mm")),
    Sketcher.Constraint("DistanceY", 3, 2, 3, 1, Q("100 mm")),
    Sketcher.Constraint("DistanceY", 5, 1, 5, 2, Q("180 mm")),
    Sketcher.Constraint("DistanceX", 2, 2, 2, 1, Q("54.1 mm")),
    Sketcher.Constraint("DistanceX", 4, 1, 4, 2, Q("101.6 mm")),
    Sketcher.Constraint("DistanceY", -1, 1, 1, 3, Q("865 mm")),
    Sketcher.Constraint("DistanceX", -1, 1, 8, 3, Q("3320 mm")),
])
pad17 = body13.newObject("PartDesign::Pad", "Pad016")
pad17.Profile = sketch17
pad17.Length = 20
body14 = doc.addObject("PartDesign::Body", "Body013")

sketch18 = body14.newObject("Sketcher::SketchObject", "Sketch017")
sketch18.AttachmentSupport = (doc.getObject("YZ_Plane013"), [""])
sketch18.MapMode = "FlatFace"
sketch18.AttachmentOffset = App.Placement(Vector(0, 0, -1390), App.Rotation())
sketch18.addGeometry([
    Part.LineSegment(Vector(3318.4, 950, 0), Vector(3380, 950, 0)),
    Part.ArcOfCircle(Part.Circle(Vector(3380, 930, 0), Vector(0, 0, 1), 20), math.radians(0), math.radians(90)),
    Part.LineSegment(Vector(3400, 930, 0), Vector(3400, 750, 0)),
    Part.LineSegment(Vector(3400, 750, 0), Vector(3298.4, 750, 0)),
    Part.LineSegment(Vector(3298.4, 750, 0), Vector(3298.4, 850, 0)),
    Part.LineSegment(Vector(3298.4, 850, 0), Vector(3352.5, 850, 0)),
    Part.ArcOfCircle(Part.Circle(Vector(3352.5, 865, 0), Vector(0, 0, 1), 15), math.radians(-90), math.radians(0)),
    Part.LineSegment(Vector(3367.5, 865, 0), Vector(3367.5, 905, 0)),
    Part.ArcOfCircle(Part.Circle(Vector(3350, 905, 0), Vector(0, 0, 1), 17.5), math.radians(0), math.radians(180)),
    Part.ArcOfCircle(Part.Circle(Vector(3322.5, 905, 0), Vector(0, 0, 1), 10), math.radians(-90), math.radians(0)),
    Part.LineSegment(Vector(3322.5, 895, 0), Vector(3308.4, 895, 0)),
    Part.ArcOfCircle(Part.Circle(Vector(3308.4, 905, 0), Vector(0, 0, 1), 10), math.radians(180), math.radians(270)),
    Part.LineSegment(Vector(3298.4, 905, 0), Vector(3298.4, 930, 0)),
    Part.ArcOfCircle(Part.Circle(Vector(3318.4, 930, 0), Vector(0, 0, 1), 20), math.radians(90), math.radians(180)),
], False)
sketch18.addConstraint([
    Sketcher.Constraint("Tangent", 0, 2, 1, 2),
    Sketcher.Constraint("Tangent", 1, 1, 2, 1),
    Sketcher.Constraint("Coincident", 2, 2, 3, 1),
    Sketcher.Constraint("Coincident", 3, 2, 4, 1),
    Sketcher.Constraint("Coincident", 4, 2, 5, 1),
    Sketcher.Constraint("Tangent", 5, 2, 6, 1),
    Sketcher.Constraint("Tangent", 6, 2, 7, 1),
    Sketcher.Constraint("Tangent", 7, 2, 8, 1),
    Sketcher.Constraint("Tangent", 8, 2, 9, 2),
    Sketcher.Constraint("Tangent", 9, 1, 10, 1),
    Sketcher.Constraint("Tangent", 10, 2, 11, 2),
    Sketcher.Constraint("Tangent", 11, 1, 12, 1),
    Sketcher.Constraint("Tangent", 12, 2, 13, 2),
    Sketcher.Constraint("Tangent", 13, 1, 0, 1),
    Sketcher.Constraint("Horizontal", 0),
    Sketcher.Constraint("Vertical", 2),
    Sketcher.Constraint("Horizontal", 3),
    Sketcher.Constraint("Vertical", 4),
    Sketcher.Constraint("Horizontal", 5),
    Sketcher.Constraint("Vertical", 7),
    Sketcher.Constraint("Horizontal", 10),
    Sketcher.Constraint("Vertical", 12),
    Sketcher.Constraint("Equal", 9, 11),
    Sketcher.Constraint("Equal", 1, 13),
    Sketcher.Constraint("Horizontal", 8, 3, 9, 3),
    Sketcher.Constraint("Vertical", 4, 2, 11, 1),
    Sketcher.Constraint("Radius", 1, Q("20 mm")),
    Sketcher.Constraint("Radius", 6, Q("15 mm")),
    Sketcher.Constraint("Radius", 9, Q("10 mm")),
    Sketcher.Constraint("Radius", 8, Q("17.5 mm")),
    Sketcher.Constraint("DistanceY", 2, 2, 2, 1, Q("180 mm")),
    Sketcher.Constraint("DistanceY", 4, 1, 4, 2, Q("100 mm")),
    Sketcher.Constraint("DistanceY", 7, 1, 7, 2, Q("40 mm")),
    Sketcher.Constraint("DistanceX", 0, 1, 0, 2, Q("61.6 mm")),
    Sketcher.Constraint("DistanceX", 5, 1, 5, 2, Q("54.1 mm")),
    Sketcher.Constraint("DistanceX", -1, 1, 1, 3, Q("3380 mm")),
    Sketcher.Constraint("DistanceY", -1, 1, 1, 3, Q("930 mm")),
])
pad18 = body14.newObject("PartDesign::Pad", "Pad017")
pad18.Profile = sketch18
pad18.Length = 20
pad18.Reversed = True
body15 = doc.addObject("PartDesign::Body", "Body014")

sketch19 = body15.newObject("Sketcher::SketchObject", "Sketch018")
sketch19.AttachmentSupport = (doc.getObject("YZ_Plane014"), [""])
sketch19.MapMode = "FlatFace"
sketch19.AttachmentOffset = App.Placement(Vector(0, 0, -1390), App.Rotation())
sketch19.addGeometry([
    Part.LineSegment(Vector(18.4, 950, 0), Vector(80, 950, 0)),
    Part.ArcOfCircle(Part.Circle(Vector(80, 930, 0), Vector(0, 0, 1), 20), math.radians(0), math.radians(90)),
    Part.LineSegment(Vector(100, 930, 0), Vector(100, 750, 0)),
    Part.LineSegment(Vector(100, 750, 0), Vector(-1.6, 750, 0)),
    Part.LineSegment(Vector(-1.6, 750, 0), Vector(-1.6, 850, 0)),
    Part.LineSegment(Vector(-1.6, 850, 0), Vector(52.5, 850, 0)),
    Part.ArcOfCircle(Part.Circle(Vector(52.5, 865, 0), Vector(0, 0, 1), 15), math.radians(-90), math.radians(0)),
    Part.LineSegment(Vector(67.5, 865, 0), Vector(67.5, 905, 0)),
    Part.ArcOfCircle(Part.Circle(Vector(50, 905, 0), Vector(0, 0, 1), 17.5), math.radians(0), math.radians(180)),
    Part.ArcOfCircle(Part.Circle(Vector(22.5, 905, 0), Vector(0, 0, 1), 10), math.radians(-90), math.radians(0)),
    Part.LineSegment(Vector(22.5, 895, 0), Vector(8.4, 895, 0)),
    Part.ArcOfCircle(Part.Circle(Vector(8.4, 905, 0), Vector(0, 0, 1), 10), math.radians(180), math.radians(270)),
    Part.LineSegment(Vector(-1.6, 905, 0), Vector(-1.6, 930, 0)),
    Part.ArcOfCircle(Part.Circle(Vector(18.4, 930, 0), Vector(0, 0, 1), 20), math.radians(90), math.radians(180)),
], False)
sketch19.addConstraint([
    Sketcher.Constraint("Tangent", 0, 2, 1, 2),
    Sketcher.Constraint("Tangent", 1, 1, 2, 1),
    Sketcher.Constraint("Coincident", 2, 2, 3, 1),
    Sketcher.Constraint("Coincident", 3, 2, 4, 1),
    Sketcher.Constraint("Coincident", 4, 2, 5, 1),
    Sketcher.Constraint("Tangent", 5, 2, 6, 1),
    Sketcher.Constraint("Tangent", 6, 2, 7, 1),
    Sketcher.Constraint("Tangent", 7, 2, 8, 1),
    Sketcher.Constraint("Tangent", 8, 2, 9, 2),
    Sketcher.Constraint("Tangent", 9, 1, 10, 1),
    Sketcher.Constraint("Tangent", 10, 2, 11, 2),
    Sketcher.Constraint("Tangent", 11, 1, 12, 1),
    Sketcher.Constraint("Tangent", 12, 2, 13, 2),
    Sketcher.Constraint("Tangent", 13, 1, 0, 1),
    Sketcher.Constraint("Horizontal", 0),
    Sketcher.Constraint("Vertical", 2),
    Sketcher.Constraint("Horizontal", 3),
    Sketcher.Constraint("Vertical", 4),
    Sketcher.Constraint("Horizontal", 5),
    Sketcher.Constraint("Vertical", 7),
    Sketcher.Constraint("Horizontal", 10),
    Sketcher.Constraint("Vertical", 12),
    Sketcher.Constraint("Equal", 9, 11),
    Sketcher.Constraint("Equal", 1, 13),
    Sketcher.Constraint("Horizontal", 8, 3, 9, 3),
    Sketcher.Constraint("Vertical", 4, 2, 11, 1),
    Sketcher.Constraint("Radius", 1, Q("20 mm")),
    Sketcher.Constraint("Radius", 6, Q("15 mm")),
    Sketcher.Constraint("Radius", 9, Q("10 mm")),
    Sketcher.Constraint("Radius", 8, Q("17.5 mm")),
    Sketcher.Constraint("DistanceY", 2, 2, 2, 1, Q("180 mm")),
    Sketcher.Constraint("DistanceY", 4, 1, 4, 2, Q("100 mm")),
    Sketcher.Constraint("DistanceY", 7, 1, 7, 2, Q("40 mm")),
    Sketcher.Constraint("DistanceX", 0, 1, 0, 2, Q("61.6 mm")),
    Sketcher.Constraint("DistanceX", 5, 1, 5, 2, Q("54.1 mm")),
    Sketcher.Constraint("DistanceX", -1, 1, 1, 3, Q("80 mm")),
    Sketcher.Constraint("DistanceY", -1, 1, 1, 3, Q("930 mm")),
])
pad19 = body15.newObject("PartDesign::Pad", "Pad018")
pad19.Profile = sketch19
pad19.Length = 20
pad19.Reversed = True
body16 = doc.addObject("PartDesign::Body", "Body015")

sketch20 = body16.newObject("Sketcher::SketchObject", "Sketch019")
sketch20.AttachmentSupport = (doc.getObject("YZ_Plane015"), [""])
sketch20.MapMode = "FlatFace"
sketch20.AttachmentOffset = App.Placement(Vector(0, 0, -50), App.Rotation())
sketch20.addGeometry([
    Part.LineSegment(Vector(3300, 100, 0), Vector(1737.5, 100, 0)),
    Part.LineSegment(Vector(1737.5, 100, 0), Vector(1737.5, 567, 0)),
    Part.LineSegment(Vector(1737.5, 567, 0), Vector(3300, 567, 0)),
    Part.LineSegment(Vector(3300, 567, 0), Vector(3300, 100, 0)),
], False)
sketch20.addConstraint([
    Sketcher.Constraint("Coincident", 0, 2, 1, 1),
    Sketcher.Constraint("Coincident", 1, 2, 2, 1),
    Sketcher.Constraint("Coincident", 2, 2, 3, 1),
    Sketcher.Constraint("Coincident", 3, 2, 0, 1),
    Sketcher.Constraint("Horizontal", 0),
    Sketcher.Constraint("Vertical", 1),
    Sketcher.Constraint("Horizontal", 2),
    Sketcher.Constraint("Vertical", 3),
    Sketcher.Constraint("DistanceY", 1, 1, 1, 2, Q("467 mm")),
    Sketcher.Constraint("DistanceX", 0, 2, 0, 1, Q("1562.5 mm")),
    Sketcher.Constraint("DistanceY", -1, 1, 0, 2, Q("100 mm")),
    Sketcher.Constraint("DistanceX", -1, 1, 2, 2, Q("3300 mm")),
])
pad20 = body16.newObject("PartDesign::Pad", "Pad019")
pad20.Profile = sketch20
pad20.Length = 4
pad20.Reversed = True
body17 = doc.addObject("PartDesign::Body", "Body016")

sketch21 = body17.newObject("Sketcher::SketchObject", "Sketch020")
sketch21.AttachmentSupport = (doc.getObject("YZ_Plane016"), [""])
sketch21.MapMode = "FlatFace"
sketch21.AttachmentOffset = App.Placement(Vector(0, 0, -50), App.Rotation())
sketch21.addGeometry([
    Part.LineSegment(Vector(1662.5, 100, 0), Vector(100, 100, 0)),
    Part.LineSegment(Vector(100, 100, 0), Vector(100, 567, 0)),
    Part.LineSegment(Vector(100, 567, 0), Vector(1662.5, 567, 0)),
    Part.LineSegment(Vector(1662.5, 567, 0), Vector(1662.5, 100, 0)),
], False)
sketch21.addConstraint([
    Sketcher.Constraint("Coincident", 0, 2, 1, 1),
    Sketcher.Constraint("Coincident", 1, 2, 2, 1),
    Sketcher.Constraint("Coincident", 2, 2, 3, 1),
    Sketcher.Constraint("Coincident", 3, 2, 0, 1),
    Sketcher.Constraint("Horizontal", 0),
    Sketcher.Constraint("Vertical", 1),
    Sketcher.Constraint("Horizontal", 2),
    Sketcher.Constraint("Vertical", 3),
    Sketcher.Constraint("DistanceY", 1, 1, 1, 2, Q("467 mm")),
    Sketcher.Constraint("DistanceX", 0, 2, 0, 1, Q("1562.5 mm")),
    Sketcher.Constraint("DistanceX", -1, 1, 0, 2, Q("100 mm")),
    Sketcher.Constraint("DistanceY", -1, 1, 0, 2, Q("100 mm")),
])
pad21 = body17.newObject("PartDesign::Pad", "Pad020")
pad21.Profile = sketch21
pad21.Length = 4
pad21.Reversed = True
body18 = doc.addObject("PartDesign::Body", "Body017")

sketch22 = body18.newObject("Sketcher::SketchObject", "Sketch021")
sketch22.AttachmentSupport = (doc.getObject("YZ_Plane017"), [""])
sketch22.MapMode = "FlatFace"
sketch22.AttachmentOffset = App.Placement(Vector(0, 0, -1340), App.Rotation())
sketch22.addGeometry([
    Part.LineSegment(Vector(1662.5, 567, 0), Vector(100, 567, 0)),
    Part.LineSegment(Vector(100, 567, 0), Vector(100, 100, 0)),
    Part.LineSegment(Vector(100, 100, 0), Vector(1662.5, 100, 0)),
    Part.LineSegment(Vector(1662.5, 100, 0), Vector(1662.5, 567, 0)),
], False)
sketch22.addConstraint([
    Sketcher.Constraint("Coincident", 0, 2, 1, 1),
    Sketcher.Constraint("Coincident", 1, 2, 2, 1),
    Sketcher.Constraint("Coincident", 2, 2, 3, 1),
    Sketcher.Constraint("Coincident", 3, 2, 0, 1),
    Sketcher.Constraint("Horizontal", 0),
    Sketcher.Constraint("Vertical", 1),
    Sketcher.Constraint("Horizontal", 2),
    Sketcher.Constraint("Vertical", 3),
    Sketcher.Constraint("DistanceY", 1, 2, 1, 1, Q("467 mm")),
    Sketcher.Constraint("DistanceX", 0, 2, 0, 1, Q("1562.5 mm")),
    Sketcher.Constraint("DistanceX", -1, 1, 0, 2, Q("100 mm")),
    Sketcher.Constraint("DistanceY", -1, 1, 0, 2, Q("567 mm")),
])
pad22 = body18.newObject("PartDesign::Pad", "Pad021")
pad22.Profile = sketch22
pad22.Length = 4
body19 = doc.addObject("PartDesign::Body", "Body018")

sketch23 = body19.newObject("Sketcher::SketchObject", "Sketch022")
sketch23.AttachmentSupport = (doc.getObject("YZ_Plane018"), [""])
sketch23.MapMode = "FlatFace"
sketch23.AttachmentOffset = App.Placement(Vector(0, 0, -1340), App.Rotation())
sketch23.addGeometry([
    Part.LineSegment(Vector(3300, 567, 0), Vector(1737.5, 567, 0)),
    Part.LineSegment(Vector(1737.5, 567, 0), Vector(1737.5, 100, 0)),
    Part.LineSegment(Vector(1737.5, 100, 0), Vector(3300, 100, 0)),
    Part.LineSegment(Vector(3300, 100, 0), Vector(3300, 567, 0)),
], False)
sketch23.addConstraint([
    Sketcher.Constraint("Coincident", 0, 2, 1, 1),
    Sketcher.Constraint("Coincident", 1, 2, 2, 1),
    Sketcher.Constraint("Coincident", 2, 2, 3, 1),
    Sketcher.Constraint("Coincident", 3, 2, 0, 1),
    Sketcher.Constraint("Horizontal", 0),
    Sketcher.Constraint("Vertical", 1),
    Sketcher.Constraint("Horizontal", 2),
    Sketcher.Constraint("Vertical", 3),
    Sketcher.Constraint("DistanceY", 1, 2, 1, 1, Q("467 mm")),
    Sketcher.Constraint("DistanceX", 0, 2, 0, 1, Q("1562.5 mm")),
    Sketcher.Constraint("DistanceY", -1, 1, 0, 2, Q("567 mm")),
    Sketcher.Constraint("DistanceX", -1, 1, 2, 2, Q("3300 mm")),
])
pad23 = body19.newObject("PartDesign::Pad", "Pad022")
pad23.Profile = sketch23
pad23.Length = 4
body20 = doc.addObject("PartDesign::Body", "Body019")

sketch24 = body20.newObject("Sketcher::SketchObject", "Sketch023")
sketch24.AttachmentSupport = (doc.getObject("XY_Plane019"), [""])
sketch24.MapMode = "FlatFace"
sketch24.AttachmentOffset = App.Placement(Vector(0, 0, 100), App.Rotation())
sketch24.addGeometry([
    Part.LineSegment(Vector(-1336, 1662.5, 0), Vector(-1336, 100, 0)),
    Part.LineSegment(Vector(-1336, 100, 0), Vector(-54, 100, 0)),
    Part.LineSegment(Vector(-54, 100, 0), Vector(-54, 1662.5, 0)),
    Part.LineSegment(Vector(-54, 1662.5, 0), Vector(-1336, 1662.5, 0)),
], False)
sketch24.addConstraint([
    Sketcher.Constraint("Coincident", 0, 2, 1, 1),
    Sketcher.Constraint("Coincident", 1, 2, 2, 1),
    Sketcher.Constraint("Coincident", 2, 2, 3, 1),
    Sketcher.Constraint("Coincident", 3, 2, 0, 1),
    Sketcher.Constraint("Vertical", 0),
    Sketcher.Constraint("Horizontal", 1),
    Sketcher.Constraint("Vertical", 2),
    Sketcher.Constraint("Horizontal", 3),
    Sketcher.Constraint("DistanceX", 1, 1, 1, 2, Q("1282 mm")),
    Sketcher.Constraint("DistanceY", 0, 2, 0, 1, Q("1562.5 mm")),
    Sketcher.Constraint("DistanceX", 0, 2, -1, 1, Q("1336 mm")),
    Sketcher.Constraint("DistanceY", -1, 1, 0, 2, Q("100 mm")),
])
pad24 = body20.newObject("PartDesign::Pad", "Pad023")
pad24.Profile = sketch24
pad24.Length = 4
body21 = doc.addObject("PartDesign::Body", "Body020")

sketch25 = body21.newObject("Sketcher::SketchObject", "Sketch024")
sketch25.AttachmentSupport = (doc.getObject("XY_Plane020"), [""])
sketch25.MapMode = "FlatFace"
sketch25.AttachmentOffset = App.Placement(Vector(0, 0, 100), App.Rotation())
sketch25.addGeometry([
    Part.LineSegment(Vector(-1336, 3300, 0), Vector(-1336, 1737.5, 0)),
    Part.LineSegment(Vector(-1336, 1737.5, 0), Vector(-54, 1737.5, 0)),
    Part.LineSegment(Vector(-54, 1737.5, 0), Vector(-54, 3300, 0)),
    Part.LineSegment(Vector(-54, 3300, 0), Vector(-1336, 3300, 0)),
], False)
sketch25.addConstraint([
    Sketcher.Constraint("Coincident", 0, 2, 1, 1),
    Sketcher.Constraint("Coincident", 1, 2, 2, 1),
    Sketcher.Constraint("Coincident", 2, 2, 3, 1),
    Sketcher.Constraint("Coincident", 3, 2, 0, 1),
    Sketcher.Constraint("Vertical", 0),
    Sketcher.Constraint("Horizontal", 1),
    Sketcher.Constraint("Vertical", 2),
    Sketcher.Constraint("Horizontal", 3),
    Sketcher.Constraint("DistanceX", 1, 1, 1, 2, Q("1282 mm")),
    Sketcher.Constraint("DistanceY", 0, 2, 0, 1, Q("1562.5 mm")),
    Sketcher.Constraint("DistanceX", 0, 2, -1, 1, Q("1336 mm")),
    Sketcher.Constraint("DistanceY", -1, 1, 2, 2, Q("3300 mm")),
])
pad25 = body21.newObject("PartDesign::Pad", "Pad024")
pad25.Profile = sketch25
pad25.Length = 4

doc.recompute()
